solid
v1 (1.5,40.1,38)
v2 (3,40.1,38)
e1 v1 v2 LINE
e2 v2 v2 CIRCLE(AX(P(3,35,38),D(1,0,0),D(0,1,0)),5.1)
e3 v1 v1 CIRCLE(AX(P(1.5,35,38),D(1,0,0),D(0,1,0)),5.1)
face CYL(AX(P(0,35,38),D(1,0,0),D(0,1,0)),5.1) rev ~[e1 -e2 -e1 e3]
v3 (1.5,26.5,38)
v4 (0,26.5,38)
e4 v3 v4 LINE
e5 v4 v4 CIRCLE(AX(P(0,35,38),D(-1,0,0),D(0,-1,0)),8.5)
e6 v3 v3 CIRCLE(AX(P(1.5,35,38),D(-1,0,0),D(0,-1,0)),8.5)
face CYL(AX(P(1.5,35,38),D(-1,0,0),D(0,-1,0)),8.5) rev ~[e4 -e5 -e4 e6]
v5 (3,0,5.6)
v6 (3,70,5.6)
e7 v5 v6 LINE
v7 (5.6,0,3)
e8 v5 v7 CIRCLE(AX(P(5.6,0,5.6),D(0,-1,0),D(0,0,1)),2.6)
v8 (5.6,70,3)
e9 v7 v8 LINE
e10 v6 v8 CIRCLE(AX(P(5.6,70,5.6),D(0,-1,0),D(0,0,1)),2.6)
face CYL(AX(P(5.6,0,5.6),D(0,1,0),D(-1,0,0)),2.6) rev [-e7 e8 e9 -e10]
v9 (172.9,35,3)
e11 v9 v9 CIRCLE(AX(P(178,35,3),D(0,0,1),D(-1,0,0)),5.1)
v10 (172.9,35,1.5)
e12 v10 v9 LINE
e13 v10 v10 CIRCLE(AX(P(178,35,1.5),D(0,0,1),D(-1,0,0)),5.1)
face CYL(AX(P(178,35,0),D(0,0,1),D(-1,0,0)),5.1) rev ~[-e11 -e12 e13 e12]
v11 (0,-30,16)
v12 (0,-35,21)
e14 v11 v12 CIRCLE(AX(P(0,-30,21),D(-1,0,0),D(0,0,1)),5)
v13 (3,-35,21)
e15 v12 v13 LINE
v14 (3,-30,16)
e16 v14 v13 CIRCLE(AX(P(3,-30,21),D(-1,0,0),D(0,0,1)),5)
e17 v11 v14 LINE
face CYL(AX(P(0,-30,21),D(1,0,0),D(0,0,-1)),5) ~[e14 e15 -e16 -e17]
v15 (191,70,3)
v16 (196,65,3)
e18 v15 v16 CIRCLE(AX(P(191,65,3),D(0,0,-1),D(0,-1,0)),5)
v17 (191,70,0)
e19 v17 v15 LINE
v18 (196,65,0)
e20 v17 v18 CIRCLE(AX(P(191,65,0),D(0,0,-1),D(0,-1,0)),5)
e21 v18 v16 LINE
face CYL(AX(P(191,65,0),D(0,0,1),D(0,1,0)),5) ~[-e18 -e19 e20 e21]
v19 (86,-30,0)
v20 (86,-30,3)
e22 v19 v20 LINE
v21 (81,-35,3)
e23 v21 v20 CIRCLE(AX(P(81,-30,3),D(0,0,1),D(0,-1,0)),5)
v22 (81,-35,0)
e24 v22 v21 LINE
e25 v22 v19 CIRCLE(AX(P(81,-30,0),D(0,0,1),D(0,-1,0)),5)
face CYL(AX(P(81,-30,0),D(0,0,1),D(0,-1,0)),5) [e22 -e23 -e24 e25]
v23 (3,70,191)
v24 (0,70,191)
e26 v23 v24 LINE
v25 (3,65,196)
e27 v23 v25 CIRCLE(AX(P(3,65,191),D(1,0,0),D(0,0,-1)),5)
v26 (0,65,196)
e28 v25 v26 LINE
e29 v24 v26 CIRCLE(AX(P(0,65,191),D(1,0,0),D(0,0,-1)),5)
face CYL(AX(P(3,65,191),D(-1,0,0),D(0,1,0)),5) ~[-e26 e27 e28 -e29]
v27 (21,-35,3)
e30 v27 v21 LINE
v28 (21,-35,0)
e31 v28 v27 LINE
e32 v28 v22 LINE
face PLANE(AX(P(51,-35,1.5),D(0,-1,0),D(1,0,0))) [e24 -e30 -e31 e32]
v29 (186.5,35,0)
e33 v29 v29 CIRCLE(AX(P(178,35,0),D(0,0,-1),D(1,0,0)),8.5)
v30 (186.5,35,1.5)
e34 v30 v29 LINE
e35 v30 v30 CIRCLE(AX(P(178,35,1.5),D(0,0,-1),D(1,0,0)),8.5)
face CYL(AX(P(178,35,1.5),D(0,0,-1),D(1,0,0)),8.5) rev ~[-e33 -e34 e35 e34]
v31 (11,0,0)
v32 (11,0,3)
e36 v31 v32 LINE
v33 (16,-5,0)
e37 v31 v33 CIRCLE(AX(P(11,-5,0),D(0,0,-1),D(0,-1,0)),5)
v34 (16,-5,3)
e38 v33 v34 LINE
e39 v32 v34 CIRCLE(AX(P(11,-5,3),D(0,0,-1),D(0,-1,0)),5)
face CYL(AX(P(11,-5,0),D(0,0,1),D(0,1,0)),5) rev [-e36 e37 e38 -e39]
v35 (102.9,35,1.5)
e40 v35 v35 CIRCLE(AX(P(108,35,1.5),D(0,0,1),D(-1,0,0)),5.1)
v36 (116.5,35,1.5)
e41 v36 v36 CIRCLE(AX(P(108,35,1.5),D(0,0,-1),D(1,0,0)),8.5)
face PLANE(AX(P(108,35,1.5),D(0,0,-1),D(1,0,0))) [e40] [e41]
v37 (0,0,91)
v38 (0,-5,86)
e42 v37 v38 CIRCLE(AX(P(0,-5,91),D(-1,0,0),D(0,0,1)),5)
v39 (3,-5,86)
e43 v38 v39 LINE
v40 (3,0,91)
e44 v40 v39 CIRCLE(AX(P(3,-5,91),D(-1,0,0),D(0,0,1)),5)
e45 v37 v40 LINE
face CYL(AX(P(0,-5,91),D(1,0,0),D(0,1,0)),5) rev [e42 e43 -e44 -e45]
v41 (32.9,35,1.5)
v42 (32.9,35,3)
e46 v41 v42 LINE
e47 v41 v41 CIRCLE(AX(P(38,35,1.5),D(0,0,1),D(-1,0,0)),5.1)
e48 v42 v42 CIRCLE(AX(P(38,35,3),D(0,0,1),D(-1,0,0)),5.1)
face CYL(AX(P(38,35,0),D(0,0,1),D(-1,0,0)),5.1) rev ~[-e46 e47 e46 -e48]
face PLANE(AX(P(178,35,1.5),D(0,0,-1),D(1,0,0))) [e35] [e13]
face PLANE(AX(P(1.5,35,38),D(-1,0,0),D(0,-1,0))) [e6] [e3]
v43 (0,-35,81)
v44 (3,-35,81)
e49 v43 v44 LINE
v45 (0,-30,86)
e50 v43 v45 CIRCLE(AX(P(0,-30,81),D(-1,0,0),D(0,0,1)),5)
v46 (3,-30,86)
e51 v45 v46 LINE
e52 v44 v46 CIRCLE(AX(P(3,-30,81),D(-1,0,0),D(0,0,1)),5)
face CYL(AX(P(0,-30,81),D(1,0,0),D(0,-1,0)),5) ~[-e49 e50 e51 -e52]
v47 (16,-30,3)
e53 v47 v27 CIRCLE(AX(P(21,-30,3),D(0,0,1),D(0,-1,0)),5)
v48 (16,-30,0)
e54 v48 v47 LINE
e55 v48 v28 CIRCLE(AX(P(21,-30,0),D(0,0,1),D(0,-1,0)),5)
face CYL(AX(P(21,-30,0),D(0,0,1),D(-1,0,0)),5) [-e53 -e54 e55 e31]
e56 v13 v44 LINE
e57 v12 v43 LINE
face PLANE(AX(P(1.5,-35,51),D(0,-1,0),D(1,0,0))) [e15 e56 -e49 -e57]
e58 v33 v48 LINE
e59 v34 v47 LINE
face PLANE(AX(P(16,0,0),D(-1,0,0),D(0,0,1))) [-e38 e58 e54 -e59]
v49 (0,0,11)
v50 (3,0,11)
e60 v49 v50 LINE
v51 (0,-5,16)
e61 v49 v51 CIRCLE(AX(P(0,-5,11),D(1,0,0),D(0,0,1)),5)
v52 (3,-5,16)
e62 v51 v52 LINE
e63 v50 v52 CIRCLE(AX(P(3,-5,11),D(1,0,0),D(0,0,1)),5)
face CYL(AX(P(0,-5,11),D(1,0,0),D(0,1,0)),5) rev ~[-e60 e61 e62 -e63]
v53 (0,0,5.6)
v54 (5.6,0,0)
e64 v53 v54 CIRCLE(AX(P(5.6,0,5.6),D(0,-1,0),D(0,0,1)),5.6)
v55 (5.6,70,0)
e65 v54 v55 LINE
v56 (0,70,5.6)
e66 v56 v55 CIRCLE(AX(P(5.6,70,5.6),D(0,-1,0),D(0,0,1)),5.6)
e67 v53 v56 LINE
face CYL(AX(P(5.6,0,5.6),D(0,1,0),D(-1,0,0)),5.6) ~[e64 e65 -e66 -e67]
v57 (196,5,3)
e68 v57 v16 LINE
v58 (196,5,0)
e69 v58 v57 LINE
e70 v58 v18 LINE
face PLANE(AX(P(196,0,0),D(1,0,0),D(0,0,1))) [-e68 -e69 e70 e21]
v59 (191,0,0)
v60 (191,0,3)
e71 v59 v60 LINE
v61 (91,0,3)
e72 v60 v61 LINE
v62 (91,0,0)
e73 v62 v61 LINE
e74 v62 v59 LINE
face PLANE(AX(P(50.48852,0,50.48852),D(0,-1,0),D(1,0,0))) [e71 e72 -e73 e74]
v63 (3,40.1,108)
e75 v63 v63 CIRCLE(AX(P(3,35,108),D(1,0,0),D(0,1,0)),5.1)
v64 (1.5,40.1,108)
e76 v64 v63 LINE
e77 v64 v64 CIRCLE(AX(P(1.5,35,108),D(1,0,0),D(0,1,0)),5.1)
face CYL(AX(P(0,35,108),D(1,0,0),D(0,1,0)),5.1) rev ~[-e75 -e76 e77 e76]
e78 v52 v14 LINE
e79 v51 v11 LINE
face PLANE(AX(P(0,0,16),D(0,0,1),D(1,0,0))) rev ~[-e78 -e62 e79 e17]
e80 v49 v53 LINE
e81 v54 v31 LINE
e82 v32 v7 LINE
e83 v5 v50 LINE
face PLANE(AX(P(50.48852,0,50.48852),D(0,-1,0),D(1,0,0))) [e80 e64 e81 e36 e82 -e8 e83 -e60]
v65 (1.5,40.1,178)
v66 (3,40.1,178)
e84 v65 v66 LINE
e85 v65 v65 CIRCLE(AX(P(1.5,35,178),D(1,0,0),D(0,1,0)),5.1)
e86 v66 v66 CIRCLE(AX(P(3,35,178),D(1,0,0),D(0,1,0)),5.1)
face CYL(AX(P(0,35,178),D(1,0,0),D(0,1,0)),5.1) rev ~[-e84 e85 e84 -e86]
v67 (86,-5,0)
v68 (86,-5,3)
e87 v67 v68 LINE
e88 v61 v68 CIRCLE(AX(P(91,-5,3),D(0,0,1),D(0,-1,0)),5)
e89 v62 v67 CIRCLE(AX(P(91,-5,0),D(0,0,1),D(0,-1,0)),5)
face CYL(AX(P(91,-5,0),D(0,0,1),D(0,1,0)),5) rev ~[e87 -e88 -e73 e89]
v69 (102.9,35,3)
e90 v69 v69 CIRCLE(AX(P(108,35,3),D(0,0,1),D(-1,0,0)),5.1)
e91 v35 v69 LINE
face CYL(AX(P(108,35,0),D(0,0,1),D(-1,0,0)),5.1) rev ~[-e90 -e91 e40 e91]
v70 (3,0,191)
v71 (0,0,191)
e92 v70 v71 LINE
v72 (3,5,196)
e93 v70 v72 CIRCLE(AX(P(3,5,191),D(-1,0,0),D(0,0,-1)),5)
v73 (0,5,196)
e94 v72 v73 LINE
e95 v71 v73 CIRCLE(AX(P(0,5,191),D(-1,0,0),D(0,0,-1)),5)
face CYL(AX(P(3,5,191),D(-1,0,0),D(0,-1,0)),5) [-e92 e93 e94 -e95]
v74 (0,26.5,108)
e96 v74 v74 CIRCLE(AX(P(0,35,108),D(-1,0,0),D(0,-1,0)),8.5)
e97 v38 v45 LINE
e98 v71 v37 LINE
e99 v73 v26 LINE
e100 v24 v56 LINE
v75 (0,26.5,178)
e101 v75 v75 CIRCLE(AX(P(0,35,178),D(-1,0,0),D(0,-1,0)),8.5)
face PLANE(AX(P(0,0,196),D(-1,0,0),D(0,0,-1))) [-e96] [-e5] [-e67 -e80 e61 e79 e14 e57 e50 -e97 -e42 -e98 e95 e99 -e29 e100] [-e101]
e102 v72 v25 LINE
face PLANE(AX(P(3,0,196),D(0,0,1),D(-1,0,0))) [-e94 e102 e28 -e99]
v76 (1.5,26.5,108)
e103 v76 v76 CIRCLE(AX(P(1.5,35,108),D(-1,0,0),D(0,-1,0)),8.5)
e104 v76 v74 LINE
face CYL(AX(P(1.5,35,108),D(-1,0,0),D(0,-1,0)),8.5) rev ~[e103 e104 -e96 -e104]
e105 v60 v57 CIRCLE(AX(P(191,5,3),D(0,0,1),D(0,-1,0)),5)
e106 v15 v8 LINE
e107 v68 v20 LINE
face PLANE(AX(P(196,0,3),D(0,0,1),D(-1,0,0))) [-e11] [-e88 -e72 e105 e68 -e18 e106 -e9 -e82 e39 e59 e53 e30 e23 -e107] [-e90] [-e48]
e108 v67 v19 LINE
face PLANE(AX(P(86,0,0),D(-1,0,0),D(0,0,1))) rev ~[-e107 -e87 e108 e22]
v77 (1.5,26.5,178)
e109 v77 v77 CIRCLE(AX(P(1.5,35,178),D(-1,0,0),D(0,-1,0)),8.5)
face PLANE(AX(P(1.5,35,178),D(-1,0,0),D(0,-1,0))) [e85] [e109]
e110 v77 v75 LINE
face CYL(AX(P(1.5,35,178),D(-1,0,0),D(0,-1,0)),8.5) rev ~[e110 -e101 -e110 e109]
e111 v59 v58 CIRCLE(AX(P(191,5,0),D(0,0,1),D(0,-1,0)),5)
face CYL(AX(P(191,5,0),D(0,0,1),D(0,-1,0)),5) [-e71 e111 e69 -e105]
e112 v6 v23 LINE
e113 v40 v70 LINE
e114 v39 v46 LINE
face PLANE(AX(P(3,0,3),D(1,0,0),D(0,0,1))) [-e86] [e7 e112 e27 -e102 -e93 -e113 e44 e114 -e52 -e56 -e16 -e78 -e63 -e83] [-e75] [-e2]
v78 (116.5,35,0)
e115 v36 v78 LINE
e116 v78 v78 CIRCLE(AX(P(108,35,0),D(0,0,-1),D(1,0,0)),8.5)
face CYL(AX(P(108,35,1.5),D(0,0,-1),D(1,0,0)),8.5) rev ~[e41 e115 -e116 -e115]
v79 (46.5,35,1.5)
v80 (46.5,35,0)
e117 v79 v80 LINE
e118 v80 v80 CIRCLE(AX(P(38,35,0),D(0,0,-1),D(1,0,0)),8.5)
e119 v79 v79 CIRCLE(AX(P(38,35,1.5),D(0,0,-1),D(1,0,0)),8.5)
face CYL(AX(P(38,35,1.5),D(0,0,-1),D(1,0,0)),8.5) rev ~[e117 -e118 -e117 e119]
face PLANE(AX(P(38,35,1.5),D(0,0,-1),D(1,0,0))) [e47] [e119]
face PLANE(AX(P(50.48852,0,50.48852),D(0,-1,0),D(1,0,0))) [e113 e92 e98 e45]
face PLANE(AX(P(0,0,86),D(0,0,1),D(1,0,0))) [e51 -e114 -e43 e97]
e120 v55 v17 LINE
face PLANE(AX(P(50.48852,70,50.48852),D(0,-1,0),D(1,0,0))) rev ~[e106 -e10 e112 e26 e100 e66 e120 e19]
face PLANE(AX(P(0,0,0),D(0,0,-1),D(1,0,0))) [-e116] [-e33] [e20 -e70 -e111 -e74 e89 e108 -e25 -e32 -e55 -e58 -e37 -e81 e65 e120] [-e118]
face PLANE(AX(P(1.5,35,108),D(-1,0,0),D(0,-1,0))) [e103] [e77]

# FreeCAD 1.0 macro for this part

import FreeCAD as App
import Part
import Sketcher
Q = App.Units.Quantity


def edges_at(feature, points):
    """Names of the edges that pass closest to the given points."""
    edges = feature.Shape.Edges
    near = lambda p: min(range(len(edges)), key=lambda i: edges[i].distToShape(Part.Vertex(*p))[0])
    return sorted({f"Edge{near(p) + 1}" for p in points})


def add_polygon(sketch, points):
    """Adds a closed chain of lines whose ends are joined by coincident constraints."""
    first, n = sketch.GeometryCount, len(points)
    for a, b in zip(points, points[1:] + points[:1]):
        sketch.addGeometry(Part.LineSegment(App.Vector(*a, 0), App.Vector(*b, 0)), False)
    for i in range(n):
        sketch.addConstraint(Sketcher.Constraint("Coincident", first + i, 2, first + (i + 1) % n, 1))

doc = App.newDocument("Part")
body = doc.addObject("PartDesign::Body", "Body")

sketch1 = doc.addObject("Sketcher::SketchObject", "Sketch")
body.addObject(sketch1)
sketch1.AttachmentSupport = (doc.XZ_Plane, [""])
sketch1.MapMode = "FlatFace"
add_polygon(sketch1, [(3, 196), (0, 196), (0, 0), (196, 0), (196, 3), (3, 3)])
sketch1.addConstraint(Sketcher.Constraint("Horizontal", 0))
sketch1.addConstraint(Sketcher.Constraint("Vertical", 1))
sketch1.addConstraint(Sketcher.Constraint("Horizontal", 2))
sketch1.addConstraint(Sketcher.Constraint("Vertical", 3))
sketch1.addConstraint(Sketcher.Constraint("Horizontal", 4))
sketch1.addConstraint(Sketcher.Constraint("Vertical", 5))
sketch1.addConstraint(Sketcher.Constraint("Coincident", 1, 2, -1, 1))
sketch1.addConstraint(Sketcher.Constraint("Equal", 2, 1))
sketch1.addConstraint(Sketcher.Constraint("Equal", 0, 3))
sketch1.addConstraint(Sketcher.Constraint("DistanceX", 0, 2, 0, 1, Q("3 mm")))
sketch1.addConstraint(Sketcher.Constraint("DistanceX", 2, 1, 2, 2, Q("196 mm")))
pad1 = doc.addObject("PartDesign::Pad", "Pad")
body.addObject(pad1)
pad1.Profile = sketch1
pad1.Length = 70
pad1.Reversed = True
doc.recompute()

fillet = doc.addObject("PartDesign::Fillet", "Fillet")
body.addObject(fillet)
fillet.Base = (pad1, edges_at(pad1, [(0, 35, 0)]))
fillet.Radius = 5.6
doc.recompute()

fillet2 = doc.addObject("PartDesign::Fillet", "Fillet001")
body.addObject(fillet2)
fillet2.Base = (fillet, edges_at(fillet, [(3, 35, 3)]))
fillet2.Radius = 2.6

sketch2 = doc.addObject("Sketcher::SketchObject", "Sketch001")
body.addObject(sketch2)
sketch2.AttachmentSupport = (doc.XZ_Plane, [""])
sketch2.MapMode = "FlatFace"
add_polygon(sketch2, [(16, 3), (16, 0), (86, 0), (86, 3)])
add_polygon(sketch2, [(0, 86), (0, 16), (3, 16), (3, 86)])
sketch2.addConstraint(Sketcher.Constraint("Vertical", 0))
sketch2.addConstraint(Sketcher.Constraint("Horizontal", 1))
sketch2.addConstraint(Sketcher.Constraint("Vertical", 2))
sketch2.addConstraint(Sketcher.Constraint("Horizontal", 3))
sketch2.addConstraint(Sketcher.Constraint("Vertical", 4))
sketch2.addConstraint(Sketcher.Constraint("Horizontal", 5))
sketch2.addConstraint(Sketcher.Constraint("Vertical", 6))
sketch2.addConstraint(Sketcher.Constraint("Horizontal", 7))
sketch2.addConstraint(Sketcher.Constraint("PointOnObject", 0, 2, -1))
sketch2.addConstraint(Sketcher.Constraint("PointOnObject", 4, 2, -2))
sketch2.addConstraint(Sketcher.Constraint("Equal", 7, 0))
sketch2.addConstraint(Sketcher.Constraint("Equal", 3, 4))
sketch2.addConstraint(Sketcher.Constraint("DistanceX", 1, 1, 1, 2, Q("70 mm")))
sketch2.addConstraint(Sketcher.Constraint("DistanceX", 5, 1, 5, 2, Q("3 mm")))
sketch2.addConstraint(Sketcher.Constraint("DistanceX", -1, 1, 0, 2, Q("16 mm")))
sketch2.addConstraint(Sketcher.Constraint("DistanceY", -1, 1, 4, 2, Q("16 mm")))
pad2 = doc.addObject("PartDesign::Pad", "Pad001")
body.addObject(pad2)
pad2.Profile = sketch2
pad2.Length = 35
doc.recompute()

fillet3 = doc.addObject("PartDesign::Fillet", "Fillet002")
body.addObject(fillet3)
fillet3.Base = (pad2, edges_at(pad2, [
    (16, 0, 1.5),
    (16, -35, 1.5),
    (86, -35, 1.5),
    (86, 0, 1.5),
    (1.5, -35, 16),
    (1.5, -35, 86),
    (1.5, 0, 16),
    (1.5, 0, 86),
    (1.5, 0, 196),
    (1.5, 70, 196),
    (196, 70, 1.5),
    (196, 0, 1.5),
]))
fillet3.Radius = 5

sketch3 = doc.addObject("Sketcher::SketchObject", "Sketch002")
body.addObject(sketch3)
sketch3.AttachmentSupport = (doc.XY_Plane, [""])
sketch3.MapMode = "FlatFace"
sketch3.addGeometry(Part.Circle(App.Vector(38, 35, 0), App.Vector(0, 0, 1), 5), False)
sketch3.addGeometry(Part.Circle(App.Vector(108, 35, 0), App.Vector(0, 0, 1), 5), False)
sketch3.addGeometry(Part.Circle(App.Vector(178, 35, 0), App.Vector(0, 0, 1), 5), False)
sketch3.addConstraint(Sketcher.Constraint("Equal", 0, 1))
sketch3.addConstraint(Sketcher.Constraint("Equal", 1, 2))
sketch3.addConstraint(Sketcher.Constraint("Horizontal", 0, 3, 1, 3))
sketch3.addConstraint(Sketcher.Constraint("Horizontal", 1, 3, 2, 3))
sketch3.addConstraint(Sketcher.Constraint("Diameter", 0, Q("10.2 mm")))
sketch3.addConstraint(Sketcher.Constraint("DistanceX", -1, 1, 0, 3, Q("38 mm")))
sketch3.addConstraint(Sketcher.Constraint("DistanceY", -1, 1, 0, 3, Q("35 mm")))
sketch3.addConstraint(Sketcher.Constraint("DistanceX", -1, 1, 1, 3, Q("108 mm")))
sketch3.addConstraint(Sketcher.Constraint("DistanceX", -1, 1, 2, 3, Q("178 mm")))
doc.recompute()
hole = doc.addObject("PartDesign::Hole", "Hole")
body.addObject(hole)
hole.Profile = sketch3
hole.ThreadType = "None"
hole.Diameter = 10.2
hole.DepthType = "ThroughAll"
hole.HoleCutType = "Counterbore"
hole.HoleCutDiameter = 17
hole.HoleCutDepth = 1.5
hole.Reversed = True

sketch4 = doc.addObject("Sketcher::SketchObject", "Sketch003")
body.addObject(sketch4)
sketch4.AttachmentSupport = (doc.YZ_Plane, [""])
sketch4.MapMode = "FlatFace"
sketch4.addGeometry(Part.Circle(App.Vector(35, 178, 0), App.Vector(0, 0, 1), 5), False)
sketch4.addGeometry(Part.Circle(App.Vector(35, 108, 0), App.Vector(0, 0, 1), 5), False)
sketch4.addGeometry(Part.Circle(App.Vector(35, 38, 0), App.Vector(0, 0, 1), 5), False)
sketch4.addConstraint(Sketcher.Constraint("Equal", 0, 1))
sketch4.addConstraint(Sketcher.Constraint("Equal", 1, 2))
sketch4.addConstraint(Sketcher.Constraint("Vertical", 0, 3, 1, 3))
sketch4.addConstraint(Sketcher.Constraint("Vertical", 1, 3, 2, 3))
sketch4.addConstraint(Sketcher.Constraint("Diameter", 0, Q("10.2 mm")))
sketch4.addConstraint(Sketcher.Constraint("DistanceX", -1, 1, 0, 3, Q("35 mm")))
sketch4.addConstraint(Sketcher.Constraint("DistanceY", -1, 1, 0, 3, Q("178 mm")))
sketch4.addConstraint(Sketcher.Constraint("DistanceY", -1, 1, 1, 3, Q("108 mm")))
sketch4.addConstraint(Sketcher.Constraint("DistanceY", -1, 1, 2, 3, Q("38 mm")))
doc.recompute()
hole2 = doc.addObject("PartDesign::Hole", "Hole001")
body.addObject(hole2)
hole2.Profile = sketch4
hole2.ThreadType = "None"
hole2.Diameter = 10.2
hole2.DepthType = "ThroughAll"
hole2.HoleCutType = "Counterbore"
hole2.HoleCutDiameter = 17
hole2.HoleCutDepth = 1.5
hole2.Reversed = True

doc.recompute()
